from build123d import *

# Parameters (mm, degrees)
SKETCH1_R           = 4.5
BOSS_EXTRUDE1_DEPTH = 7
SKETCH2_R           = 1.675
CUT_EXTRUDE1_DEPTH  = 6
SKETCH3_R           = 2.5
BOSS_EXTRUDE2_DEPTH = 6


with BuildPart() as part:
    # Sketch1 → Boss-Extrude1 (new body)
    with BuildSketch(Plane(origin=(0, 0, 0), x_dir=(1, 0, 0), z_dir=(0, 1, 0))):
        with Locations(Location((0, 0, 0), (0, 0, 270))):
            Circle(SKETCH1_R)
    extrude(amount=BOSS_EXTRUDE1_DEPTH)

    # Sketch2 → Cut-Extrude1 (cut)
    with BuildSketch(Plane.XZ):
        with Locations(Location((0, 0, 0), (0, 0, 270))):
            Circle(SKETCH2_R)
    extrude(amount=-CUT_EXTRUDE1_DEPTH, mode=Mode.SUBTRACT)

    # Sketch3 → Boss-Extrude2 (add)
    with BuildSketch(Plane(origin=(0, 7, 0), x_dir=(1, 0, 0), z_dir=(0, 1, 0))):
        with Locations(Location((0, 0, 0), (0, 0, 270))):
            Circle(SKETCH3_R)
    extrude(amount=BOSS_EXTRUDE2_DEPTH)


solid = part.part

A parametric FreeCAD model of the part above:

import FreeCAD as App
import Part
import Sketcher

V = App.Vector

doc = App.newDocument("Part")
body = doc.addObject("PartDesign::Body", "Body")

sketch1 = body.newObject("Sketcher::SketchObject", "Sketch")
sketch1.AttachmentSupport = (doc.getObject("XZ_Plane"), [""])
sketch1.MapMode = "FlatFace"
sketch1.addGeometry(Part.Circle(V(0, 0, 0), V(0, 0, 1), 4.5), False)
sketch1.addConstraint(Sketcher.Constraint("Coincident", 0, 3, -1, 1))
sketch1.addConstraint(Sketcher.Constraint("Diameter", 0, 9.0))
pad1 = body.newObject("PartDesign::Pad", "Pad")
pad1.Profile = sketch1
pad1.Length = 7
pad1.Reversed = True

sketch2 = body.newObject("Sketcher::SketchObject", "Sketch001")
sketch2.AttachmentSupport = (doc.getObject("XZ_Plane"), [""])
sketch2.MapMode = "FlatFace"
sketch2.addGeometry(Part.Circle(V(0, 0, 0), V(0, 0, 1), 1.675), False)
sketch2.addConstraint(Sketcher.Constraint("Coincident", 0, 3, -1, 1))
sketch2.addConstraint(Sketcher.Constraint("Diameter", 0, 3.35))
pocket1 = body.newObject("PartDesign::Pocket", "Pocket")
pocket1.Profile = sketch2
pocket1.Length = 6

sketch3 = body.newObject("Sketcher::SketchObject", "Sketch002")
sketch3.AttachmentSupport = (doc.getObject("XZ_Plane"), [""])
sketch3.MapMode = "FlatFace"
sketch3.AttachmentOffset = App.Placement(V(0, 0, -7), App.Rotation())
sketch3.addGeometry(Part.Circle(V(0, 0, 0), V(0, 0, 1), 2.5), False)
sketch3.addConstraint(Sketcher.Constraint("Coincident", 0, 3, -1, 1))
sketch3.addConstraint(Sketcher.Constraint("Diameter", 0, 5.0))
pad2 = body.newObject("PartDesign::Pad", "Pad001")
pad2.Profile = sketch3
pad2.Length = 6
pad2.Reversed = True

doc.recompute()
